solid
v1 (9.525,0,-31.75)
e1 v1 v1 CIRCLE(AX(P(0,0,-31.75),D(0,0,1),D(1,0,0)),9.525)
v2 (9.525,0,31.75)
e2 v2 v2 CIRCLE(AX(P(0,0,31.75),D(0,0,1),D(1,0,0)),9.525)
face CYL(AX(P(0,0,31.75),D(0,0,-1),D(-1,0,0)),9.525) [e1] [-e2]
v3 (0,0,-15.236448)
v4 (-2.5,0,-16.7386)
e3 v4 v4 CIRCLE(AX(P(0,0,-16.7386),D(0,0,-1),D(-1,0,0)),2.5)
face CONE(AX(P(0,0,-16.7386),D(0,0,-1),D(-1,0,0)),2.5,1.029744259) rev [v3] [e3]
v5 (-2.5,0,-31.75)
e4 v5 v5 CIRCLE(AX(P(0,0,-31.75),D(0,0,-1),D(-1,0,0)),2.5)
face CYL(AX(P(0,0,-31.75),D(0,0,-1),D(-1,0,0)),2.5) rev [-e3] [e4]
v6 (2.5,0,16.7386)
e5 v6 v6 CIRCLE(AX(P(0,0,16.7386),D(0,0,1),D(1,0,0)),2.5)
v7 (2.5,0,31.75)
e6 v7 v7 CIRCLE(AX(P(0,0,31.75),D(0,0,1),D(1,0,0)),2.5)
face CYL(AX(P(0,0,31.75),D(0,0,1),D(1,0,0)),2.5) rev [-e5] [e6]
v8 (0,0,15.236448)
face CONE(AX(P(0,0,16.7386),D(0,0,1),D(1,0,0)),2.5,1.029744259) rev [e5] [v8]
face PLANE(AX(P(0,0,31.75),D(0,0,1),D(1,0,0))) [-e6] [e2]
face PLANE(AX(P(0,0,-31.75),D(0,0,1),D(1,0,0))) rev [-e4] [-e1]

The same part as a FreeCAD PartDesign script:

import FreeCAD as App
import Part
import Sketcher
Q = App.Units.Quantity

doc = App.newDocument("Part")
body = doc.addObject("PartDesign::Body", "Body")

# Sketch on XY plane
sketch1 = body.newObject("Sketcher::SketchObject", "Sketch")
sketch1.AttachmentSupport = (doc.getObject("XY_Plane"), [""])
sketch1.MapMode = "FlatFace"
sketch1.addGeometry(Part.Circle(App.Vector(0, 0, 0), App.Vector(0, 0, 1), 10), False)
sketch1.addConstraint(Sketcher.Constraint("Coincident", 0, 3, -1, 1))
sketch1.addConstraint(Sketcher.Constraint("Diameter", 0, Q("0.75 in")))
pad1 = body.newObject("PartDesign::Pad", "Pad")
pad1.Profile = sketch1
pad1.Length = Q("2.5 in")
pad1.Midplane = True

# Sketch on XY plane
sketch2 = body.newObject("Sketcher::SketchObject", "Sketch001")
sketch2.AttachmentSupport = (doc.getObject("XY_Plane"), [""])
sketch2.MapMode = "FlatFace"
sketch2.AttachmentOffset = App.Placement(App.Vector(0, 0, 1.25 * 25.4), App.Rotation())
sketch2.addGeometry(Part.Circle(App.Vector(0, 0, 0), App.Vector(0, 0, 1), 2.5), False)
sketch2.addConstraint(Sketcher.Constraint("Coincident", 0, 3, -1, 1))
sketch2.addConstraint(Sketcher.Constraint("Diameter", 0, Q("5 mm")))
doc.recompute()
hole = body.newObject("PartDesign::Hole", "Hole")
hole.Profile = sketch2
hole.ThreadType = "None"
hole.Diameter = 5
hole.DepthType = "Dimension"
hole.Depth = Q("0.591 in")
hole.DrillPoint = "Angled"
hole.DrillPointAngle = 118

# Sketch on XY plane
sketch3 = body.newObject("Sketcher::SketchObject", "Sketch002")
sketch3.AttachmentSupport = (doc.getObject("XY_Plane"), [""])
sketch3.MapMode = "FlatFace"
sketch3.AttachmentOffset = App.Placement(App.Vector(0, 0, -1.25 * 25.4), App.Rotation())
sketch3.addGeometry(Part.Circle(App.Vector(0, 0, 0), App.Vector(0, 0, 1), 2.5), False)
sketch3.addConstraint(Sketcher.Constraint("Coincident", 0, 3, -1, 1))
sketch3.addConstraint(Sketcher.Constraint("Diameter", 0, Q("5 mm")))
doc.recompute()
hole2 = body.newObject("PartDesign::Hole", "Hole001")
hole2.Profile = sketch3
hole2.ThreadType = "None"
hole2.Diameter = 5
hole2.DepthType = "Dimension"
hole2.Depth = Q("0.591 in")
hole2.DrillPoint = "Angled"
hole2.DrillPointAngle = 118
hole2.Reversed = True

doc.recompute()
